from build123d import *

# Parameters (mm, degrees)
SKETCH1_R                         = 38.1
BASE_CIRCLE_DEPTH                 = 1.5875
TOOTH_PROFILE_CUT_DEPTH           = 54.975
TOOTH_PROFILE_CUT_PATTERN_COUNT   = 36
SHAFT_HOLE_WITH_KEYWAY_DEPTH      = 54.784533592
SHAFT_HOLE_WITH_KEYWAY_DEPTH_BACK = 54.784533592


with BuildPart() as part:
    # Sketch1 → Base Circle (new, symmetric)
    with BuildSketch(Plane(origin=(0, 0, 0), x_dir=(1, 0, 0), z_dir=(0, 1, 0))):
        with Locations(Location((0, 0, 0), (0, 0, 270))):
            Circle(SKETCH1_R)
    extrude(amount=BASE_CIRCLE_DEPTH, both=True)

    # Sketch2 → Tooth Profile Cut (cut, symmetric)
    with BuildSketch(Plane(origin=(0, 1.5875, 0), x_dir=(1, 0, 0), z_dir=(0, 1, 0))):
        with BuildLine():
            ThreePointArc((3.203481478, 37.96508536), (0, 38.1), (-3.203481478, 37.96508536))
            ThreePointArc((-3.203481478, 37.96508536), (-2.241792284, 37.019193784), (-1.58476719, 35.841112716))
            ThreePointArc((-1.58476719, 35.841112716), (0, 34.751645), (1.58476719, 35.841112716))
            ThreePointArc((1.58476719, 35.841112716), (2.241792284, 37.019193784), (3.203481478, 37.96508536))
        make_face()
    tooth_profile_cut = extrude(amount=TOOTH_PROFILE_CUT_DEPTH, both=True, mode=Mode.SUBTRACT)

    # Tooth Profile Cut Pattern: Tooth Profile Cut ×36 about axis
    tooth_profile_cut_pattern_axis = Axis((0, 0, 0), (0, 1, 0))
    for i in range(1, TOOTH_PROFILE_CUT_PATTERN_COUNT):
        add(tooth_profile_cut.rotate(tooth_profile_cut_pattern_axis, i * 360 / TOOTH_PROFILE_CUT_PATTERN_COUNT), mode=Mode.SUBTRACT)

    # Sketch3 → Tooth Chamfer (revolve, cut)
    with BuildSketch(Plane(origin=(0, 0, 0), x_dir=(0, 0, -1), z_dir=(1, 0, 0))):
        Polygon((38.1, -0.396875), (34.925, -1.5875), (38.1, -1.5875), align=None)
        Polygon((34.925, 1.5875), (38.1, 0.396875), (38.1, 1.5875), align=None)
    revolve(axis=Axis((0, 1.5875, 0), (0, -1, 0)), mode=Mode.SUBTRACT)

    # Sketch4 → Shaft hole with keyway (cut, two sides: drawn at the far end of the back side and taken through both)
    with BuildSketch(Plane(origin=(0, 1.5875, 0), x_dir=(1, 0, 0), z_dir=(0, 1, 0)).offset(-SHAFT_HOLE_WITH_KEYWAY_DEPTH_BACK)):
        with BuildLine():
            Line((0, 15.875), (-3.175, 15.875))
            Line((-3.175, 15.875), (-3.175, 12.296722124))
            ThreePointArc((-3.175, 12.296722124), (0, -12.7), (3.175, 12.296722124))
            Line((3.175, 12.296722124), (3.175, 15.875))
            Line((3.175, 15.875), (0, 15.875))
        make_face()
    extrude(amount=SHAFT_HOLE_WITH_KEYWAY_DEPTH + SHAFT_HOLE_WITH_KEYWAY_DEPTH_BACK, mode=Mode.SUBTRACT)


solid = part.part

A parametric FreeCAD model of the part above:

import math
import FreeCAD as App
import Part
import Sketcher
from FreeCAD import Vector
Q = App.Units.Quantity

doc = App.newDocument("Part")
body = doc.addObject("PartDesign::Body", "Body")

# Sketch on XZ plane
sketch1 = body.newObject("Sketcher::SketchObject", "Sketch")
sketch1.AttachmentSupport = (doc.getObject("XZ_Plane"), [""])
sketch1.MapMode = "FlatFace"
sketch1.addGeometry(Part.Circle(Vector(0, 0, 0), Vector(0, 0, 1), 38), False)
sketch1.addConstraint([
    Sketcher.Constraint("Coincident", 0, 3, -1, 1),
    Sketcher.Constraint("Diameter", 0, Q("3 in")),
])
pad1 = body.newObject("PartDesign::Pad", "Pad")
pad1.Profile = sketch1
pad1.Length = Q("0.125 in")
pad1.Midplane = True

# Sketch on XZ plane
sketch2 = body.newObject("Sketcher::SketchObject", "Sketch001")
sketch2.AttachmentSupport = (doc.getObject("XZ_Plane"), [""])
sketch2.MapMode = "FlatFace"
sketch2.AttachmentOffset = App.Placement(Vector(0, 0, -0.0625 * 25.4), App.Rotation())
sketch2.addGeometry([
    Part.ArcOfCircle(Part.Circle(Vector(0, 0, 0), Vector(0, 0, 1), 38.1), math.radians(-94.82), math.radians(-85.18)),
    Part.ArcOfCircle(Part.Circle(Vector(-6, -34.1, 0), Vector(0, 0, 1), 4.8), math.radians(-54), math.radians(-21)),
    Part.ArcOfCircle(Part.Circle(Vector(0, -36.4, 0), Vector(0, 0, 1), 1.7), math.radians(21), math.radians(159)),
    Part.ArcOfCircle(Part.Circle(Vector(6, -34.1, 0), Vector(0, 0, 1), 4.8), math.radians(-159), math.radians(-126)),
], False)
sketch2.addConstraint([
    Sketcher.Constraint("Coincident", 0, 1, 1, 1),
    Sketcher.Constraint("Tangent", 1, 2, 2, 2),
    Sketcher.Constraint("Tangent", 2, 1, 3, 1),
    Sketcher.Constraint("Coincident", 3, 2, 0, 2),
    Sketcher.Constraint("Coincident", 0, 3, -1, 1),
    Sketcher.Constraint("Equal", 1, 3),
    Sketcher.Constraint("Symmetric", 1, 3, 3, 3, -2),
    Sketcher.Constraint("Radius", 0, Q("1.5 in")),
    Sketcher.Constraint("DistanceY", 2, 3, -1, 1, Q("1.435 in")),
    Sketcher.Constraint("Radius", 1, 4.750103),
    Sketcher.Constraint("Radius", 2, 1.697355),
    Sketcher.Constraint("DistanceX", 1, 3, -1, 1, 6.019789),
])
pocket1 = body.newObject("PartDesign::Pocket", "Pocket")
pocket1.Profile = sketch2
pocket1.Length = 109.95
pocket1.Midplane = True
doc.recompute()

polarpattern = body.newObject("PartDesign::PolarPattern", "PolarPattern")
polarpattern.Originals = [pocket1]
polarpattern.Axis = (doc.getObject("Y_Axis"), [""])
polarpattern.Angle = 360
polarpattern.Occurrences = 36
body.Tip = polarpattern

# Sketch on YZ plane
sketch3 = body.newObject("Sketcher::SketchObject", "Sketch002")
sketch3.AttachmentSupport = (doc.getObject("YZ_Plane"), [""])
sketch3.MapMode = "FlatFace"
sketch3.addGeometry([
    Part.LineSegment(Vector(-0.4, -38.1, 0), Vector(-1.6, -34.9, 0)),  # 0
    Part.LineSegment(Vector(-1.6, -34.9, 0), Vector(-1.6, -38.1, 0)),  # 1
    Part.LineSegment(Vector(-1.6, -38.1, 0), Vector(-0.4, -38.1, 0)),  # 2
    Part.LineSegment(Vector(1.6, -34.9, 0), Vector(0.4, -38.1, 0)),  # 3
    Part.LineSegment(Vector(0.4, -38.1, 0), Vector(1.6, -38.1, 0)),  # 4
    Part.LineSegment(Vector(1.6, -38.1, 0), Vector(1.6, -34.9, 0)),  # 5
], False)
sketch3.addConstraint([
    Sketcher.Constraint("Coincident", 0, 2, 1, 1),
    Sketcher.Constraint("Coincident", 1, 2, 2, 1),
    Sketcher.Constraint("Coincident", 2, 2, 0, 1),
    Sketcher.Constraint("Coincident", 3, 2, 4, 1),
    Sketcher.Constraint("Coincident", 4, 2, 5, 1),
    Sketcher.Constraint("Coincident", 5, 2, 3, 1),
    Sketcher.Constraint("Vertical", 1),
    Sketcher.Constraint("Horizontal", 2),
    Sketcher.Constraint("Horizontal", 4),
    Sketcher.Constraint("Vertical", 5),
    Sketcher.Constraint("Symmetric", 2, 2, 3, 2, -2),
    Sketcher.Constraint("Symmetric", 0, 2, 5, 2, -2),
    Sketcher.Constraint("DistanceY", 1, 2, -1, 1, Q("1.5 in")),
    Sketcher.Constraint("DistanceX", 2, 1, 2, 2, Q("0.046875 in")),
    Sketcher.Constraint("DistanceY", 1, 2, 1, 1, Q("0.125 in")),
    Sketcher.Constraint("DistanceX", 0, 2, -1, 1, Q("0.0625 in")),
])
groove = body.newObject("PartDesign::Groove", "Groove")
groove.Profile = sketch3
groove.ReferenceAxis = (sketch3, ["H_Axis"])
groove.Angle = 360

# Sketch on XZ plane
sketch4 = body.newObject("Sketcher::SketchObject", "Sketch003")
sketch4.AttachmentSupport = (doc.getObject("XZ_Plane"), [""])
sketch4.MapMode = "FlatFace"
sketch4.AttachmentOffset = App.Placement(Vector(0, 0, -0.0625 * 25.4), App.Rotation())
sketch4.addGeometry([
    Part.LineSegment(Vector(-3.2, -15.9, 0), Vector(-3.2, -12.3, 0)),
    Part.ArcOfCircle(Part.Circle(Vector(0, 0, 0), Vector(0, 0, 1), 12.7), math.radians(-76), math.radians(256)),
    Part.LineSegment(Vector(3.2, -12.3, 0), Vector(3.2, -15.9, 0)),
    Part.LineSegment(Vector(3.2, -15.9, 0), Vector(-3.2, -15.9, 0)),
], False)
sketch4.addConstraint([
    Sketcher.Constraint("Coincident", 0, 2, 1, 2),
    Sketcher.Constraint("Coincident", 1, 1, 2, 1),
    Sketcher.Constraint("Coincident", 2, 2, 3, 1),
    Sketcher.Constraint("Coincident", 3, 2, 0, 1),
    Sketcher.Constraint("Vertical", 0),
    Sketcher.Constraint("Vertical", 2),
    Sketcher.Constraint("Horizontal", 3),
    Sketcher.Constraint("Coincident", 1, 3, -1, 1),
    Sketcher.Constraint("Horizontal", 0, 2, 1, 1),
    Sketcher.Constraint("Radius", 1, Q("0.5 in")),
    Sketcher.Constraint("DistanceX", 3, 2, 3, 1, Q("0.25 in")),
    Sketcher.Constraint("DistanceY", 2, 2, -1, 1, Q("0.625 in")),
])
pocket2 = body.newObject("PartDesign::Pocket", "Pocket001")
pocket2.Profile = sketch4
pocket2.Type = "ThroughAll"
pocket2.Midplane = True

doc.recompute()
